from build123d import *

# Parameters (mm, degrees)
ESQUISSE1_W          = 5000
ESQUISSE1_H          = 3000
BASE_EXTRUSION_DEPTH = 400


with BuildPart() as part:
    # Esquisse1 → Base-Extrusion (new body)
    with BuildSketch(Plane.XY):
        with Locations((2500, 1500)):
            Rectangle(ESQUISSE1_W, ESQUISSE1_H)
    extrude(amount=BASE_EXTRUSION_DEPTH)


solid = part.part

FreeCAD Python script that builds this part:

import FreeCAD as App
import Part
import Sketcher

V = App.Vector
Q = App.Units.Quantity

doc = App.newDocument("Part")
body = doc.addObject("PartDesign::Body", "Body")

# Sketch on XY plane
sketch1 = body.newObject("Sketcher::SketchObject", "Sketch")
sketch1.AttachmentSupport = (doc.getObject("XY_Plane"), [""])
sketch1.MapMode = "FlatFace"
sketch1.addGeometry([
    Part.LineSegment(V(0, 3000, 0), V(0, 0, 0)),
    Part.LineSegment(V(0, 0, 0), V(5000, 0, 0)),
    Part.LineSegment(V(5000, 0, 0), V(5000, 3000, 0)),
    Part.LineSegment(V(5000, 3000, 0), V(0, 3000, 0)),
], False)
sketch1.addConstraint([
    Sketcher.Constraint("Coincident", 0, 2, 1, 1),
    Sketcher.Constraint("Coincident", 1, 2, 2, 1),
    Sketcher.Constraint("Coincident", 2, 2, 3, 1),
    Sketcher.Constraint("Coincident", 3, 2, 0, 1),
    Sketcher.Constraint("Vertical", 0),
    Sketcher.Constraint("Horizontal", 1),
    Sketcher.Constraint("Vertical", 2),
    Sketcher.Constraint("Horizontal", 3),
    Sketcher.Constraint("Coincident", 0, 2, -1, 1),
    Sketcher.Constraint("DistanceX", 1, 1, 1, 2, Q("5000 mm")),
    Sketcher.Constraint("DistanceY", 0, 2, 0, 1, Q("3000 mm")),
])
pad1 = body.newObject("PartDesign::Pad", "Pad")
pad1.Profile = sketch1
pad1.Length = 400

doc.recompute()
